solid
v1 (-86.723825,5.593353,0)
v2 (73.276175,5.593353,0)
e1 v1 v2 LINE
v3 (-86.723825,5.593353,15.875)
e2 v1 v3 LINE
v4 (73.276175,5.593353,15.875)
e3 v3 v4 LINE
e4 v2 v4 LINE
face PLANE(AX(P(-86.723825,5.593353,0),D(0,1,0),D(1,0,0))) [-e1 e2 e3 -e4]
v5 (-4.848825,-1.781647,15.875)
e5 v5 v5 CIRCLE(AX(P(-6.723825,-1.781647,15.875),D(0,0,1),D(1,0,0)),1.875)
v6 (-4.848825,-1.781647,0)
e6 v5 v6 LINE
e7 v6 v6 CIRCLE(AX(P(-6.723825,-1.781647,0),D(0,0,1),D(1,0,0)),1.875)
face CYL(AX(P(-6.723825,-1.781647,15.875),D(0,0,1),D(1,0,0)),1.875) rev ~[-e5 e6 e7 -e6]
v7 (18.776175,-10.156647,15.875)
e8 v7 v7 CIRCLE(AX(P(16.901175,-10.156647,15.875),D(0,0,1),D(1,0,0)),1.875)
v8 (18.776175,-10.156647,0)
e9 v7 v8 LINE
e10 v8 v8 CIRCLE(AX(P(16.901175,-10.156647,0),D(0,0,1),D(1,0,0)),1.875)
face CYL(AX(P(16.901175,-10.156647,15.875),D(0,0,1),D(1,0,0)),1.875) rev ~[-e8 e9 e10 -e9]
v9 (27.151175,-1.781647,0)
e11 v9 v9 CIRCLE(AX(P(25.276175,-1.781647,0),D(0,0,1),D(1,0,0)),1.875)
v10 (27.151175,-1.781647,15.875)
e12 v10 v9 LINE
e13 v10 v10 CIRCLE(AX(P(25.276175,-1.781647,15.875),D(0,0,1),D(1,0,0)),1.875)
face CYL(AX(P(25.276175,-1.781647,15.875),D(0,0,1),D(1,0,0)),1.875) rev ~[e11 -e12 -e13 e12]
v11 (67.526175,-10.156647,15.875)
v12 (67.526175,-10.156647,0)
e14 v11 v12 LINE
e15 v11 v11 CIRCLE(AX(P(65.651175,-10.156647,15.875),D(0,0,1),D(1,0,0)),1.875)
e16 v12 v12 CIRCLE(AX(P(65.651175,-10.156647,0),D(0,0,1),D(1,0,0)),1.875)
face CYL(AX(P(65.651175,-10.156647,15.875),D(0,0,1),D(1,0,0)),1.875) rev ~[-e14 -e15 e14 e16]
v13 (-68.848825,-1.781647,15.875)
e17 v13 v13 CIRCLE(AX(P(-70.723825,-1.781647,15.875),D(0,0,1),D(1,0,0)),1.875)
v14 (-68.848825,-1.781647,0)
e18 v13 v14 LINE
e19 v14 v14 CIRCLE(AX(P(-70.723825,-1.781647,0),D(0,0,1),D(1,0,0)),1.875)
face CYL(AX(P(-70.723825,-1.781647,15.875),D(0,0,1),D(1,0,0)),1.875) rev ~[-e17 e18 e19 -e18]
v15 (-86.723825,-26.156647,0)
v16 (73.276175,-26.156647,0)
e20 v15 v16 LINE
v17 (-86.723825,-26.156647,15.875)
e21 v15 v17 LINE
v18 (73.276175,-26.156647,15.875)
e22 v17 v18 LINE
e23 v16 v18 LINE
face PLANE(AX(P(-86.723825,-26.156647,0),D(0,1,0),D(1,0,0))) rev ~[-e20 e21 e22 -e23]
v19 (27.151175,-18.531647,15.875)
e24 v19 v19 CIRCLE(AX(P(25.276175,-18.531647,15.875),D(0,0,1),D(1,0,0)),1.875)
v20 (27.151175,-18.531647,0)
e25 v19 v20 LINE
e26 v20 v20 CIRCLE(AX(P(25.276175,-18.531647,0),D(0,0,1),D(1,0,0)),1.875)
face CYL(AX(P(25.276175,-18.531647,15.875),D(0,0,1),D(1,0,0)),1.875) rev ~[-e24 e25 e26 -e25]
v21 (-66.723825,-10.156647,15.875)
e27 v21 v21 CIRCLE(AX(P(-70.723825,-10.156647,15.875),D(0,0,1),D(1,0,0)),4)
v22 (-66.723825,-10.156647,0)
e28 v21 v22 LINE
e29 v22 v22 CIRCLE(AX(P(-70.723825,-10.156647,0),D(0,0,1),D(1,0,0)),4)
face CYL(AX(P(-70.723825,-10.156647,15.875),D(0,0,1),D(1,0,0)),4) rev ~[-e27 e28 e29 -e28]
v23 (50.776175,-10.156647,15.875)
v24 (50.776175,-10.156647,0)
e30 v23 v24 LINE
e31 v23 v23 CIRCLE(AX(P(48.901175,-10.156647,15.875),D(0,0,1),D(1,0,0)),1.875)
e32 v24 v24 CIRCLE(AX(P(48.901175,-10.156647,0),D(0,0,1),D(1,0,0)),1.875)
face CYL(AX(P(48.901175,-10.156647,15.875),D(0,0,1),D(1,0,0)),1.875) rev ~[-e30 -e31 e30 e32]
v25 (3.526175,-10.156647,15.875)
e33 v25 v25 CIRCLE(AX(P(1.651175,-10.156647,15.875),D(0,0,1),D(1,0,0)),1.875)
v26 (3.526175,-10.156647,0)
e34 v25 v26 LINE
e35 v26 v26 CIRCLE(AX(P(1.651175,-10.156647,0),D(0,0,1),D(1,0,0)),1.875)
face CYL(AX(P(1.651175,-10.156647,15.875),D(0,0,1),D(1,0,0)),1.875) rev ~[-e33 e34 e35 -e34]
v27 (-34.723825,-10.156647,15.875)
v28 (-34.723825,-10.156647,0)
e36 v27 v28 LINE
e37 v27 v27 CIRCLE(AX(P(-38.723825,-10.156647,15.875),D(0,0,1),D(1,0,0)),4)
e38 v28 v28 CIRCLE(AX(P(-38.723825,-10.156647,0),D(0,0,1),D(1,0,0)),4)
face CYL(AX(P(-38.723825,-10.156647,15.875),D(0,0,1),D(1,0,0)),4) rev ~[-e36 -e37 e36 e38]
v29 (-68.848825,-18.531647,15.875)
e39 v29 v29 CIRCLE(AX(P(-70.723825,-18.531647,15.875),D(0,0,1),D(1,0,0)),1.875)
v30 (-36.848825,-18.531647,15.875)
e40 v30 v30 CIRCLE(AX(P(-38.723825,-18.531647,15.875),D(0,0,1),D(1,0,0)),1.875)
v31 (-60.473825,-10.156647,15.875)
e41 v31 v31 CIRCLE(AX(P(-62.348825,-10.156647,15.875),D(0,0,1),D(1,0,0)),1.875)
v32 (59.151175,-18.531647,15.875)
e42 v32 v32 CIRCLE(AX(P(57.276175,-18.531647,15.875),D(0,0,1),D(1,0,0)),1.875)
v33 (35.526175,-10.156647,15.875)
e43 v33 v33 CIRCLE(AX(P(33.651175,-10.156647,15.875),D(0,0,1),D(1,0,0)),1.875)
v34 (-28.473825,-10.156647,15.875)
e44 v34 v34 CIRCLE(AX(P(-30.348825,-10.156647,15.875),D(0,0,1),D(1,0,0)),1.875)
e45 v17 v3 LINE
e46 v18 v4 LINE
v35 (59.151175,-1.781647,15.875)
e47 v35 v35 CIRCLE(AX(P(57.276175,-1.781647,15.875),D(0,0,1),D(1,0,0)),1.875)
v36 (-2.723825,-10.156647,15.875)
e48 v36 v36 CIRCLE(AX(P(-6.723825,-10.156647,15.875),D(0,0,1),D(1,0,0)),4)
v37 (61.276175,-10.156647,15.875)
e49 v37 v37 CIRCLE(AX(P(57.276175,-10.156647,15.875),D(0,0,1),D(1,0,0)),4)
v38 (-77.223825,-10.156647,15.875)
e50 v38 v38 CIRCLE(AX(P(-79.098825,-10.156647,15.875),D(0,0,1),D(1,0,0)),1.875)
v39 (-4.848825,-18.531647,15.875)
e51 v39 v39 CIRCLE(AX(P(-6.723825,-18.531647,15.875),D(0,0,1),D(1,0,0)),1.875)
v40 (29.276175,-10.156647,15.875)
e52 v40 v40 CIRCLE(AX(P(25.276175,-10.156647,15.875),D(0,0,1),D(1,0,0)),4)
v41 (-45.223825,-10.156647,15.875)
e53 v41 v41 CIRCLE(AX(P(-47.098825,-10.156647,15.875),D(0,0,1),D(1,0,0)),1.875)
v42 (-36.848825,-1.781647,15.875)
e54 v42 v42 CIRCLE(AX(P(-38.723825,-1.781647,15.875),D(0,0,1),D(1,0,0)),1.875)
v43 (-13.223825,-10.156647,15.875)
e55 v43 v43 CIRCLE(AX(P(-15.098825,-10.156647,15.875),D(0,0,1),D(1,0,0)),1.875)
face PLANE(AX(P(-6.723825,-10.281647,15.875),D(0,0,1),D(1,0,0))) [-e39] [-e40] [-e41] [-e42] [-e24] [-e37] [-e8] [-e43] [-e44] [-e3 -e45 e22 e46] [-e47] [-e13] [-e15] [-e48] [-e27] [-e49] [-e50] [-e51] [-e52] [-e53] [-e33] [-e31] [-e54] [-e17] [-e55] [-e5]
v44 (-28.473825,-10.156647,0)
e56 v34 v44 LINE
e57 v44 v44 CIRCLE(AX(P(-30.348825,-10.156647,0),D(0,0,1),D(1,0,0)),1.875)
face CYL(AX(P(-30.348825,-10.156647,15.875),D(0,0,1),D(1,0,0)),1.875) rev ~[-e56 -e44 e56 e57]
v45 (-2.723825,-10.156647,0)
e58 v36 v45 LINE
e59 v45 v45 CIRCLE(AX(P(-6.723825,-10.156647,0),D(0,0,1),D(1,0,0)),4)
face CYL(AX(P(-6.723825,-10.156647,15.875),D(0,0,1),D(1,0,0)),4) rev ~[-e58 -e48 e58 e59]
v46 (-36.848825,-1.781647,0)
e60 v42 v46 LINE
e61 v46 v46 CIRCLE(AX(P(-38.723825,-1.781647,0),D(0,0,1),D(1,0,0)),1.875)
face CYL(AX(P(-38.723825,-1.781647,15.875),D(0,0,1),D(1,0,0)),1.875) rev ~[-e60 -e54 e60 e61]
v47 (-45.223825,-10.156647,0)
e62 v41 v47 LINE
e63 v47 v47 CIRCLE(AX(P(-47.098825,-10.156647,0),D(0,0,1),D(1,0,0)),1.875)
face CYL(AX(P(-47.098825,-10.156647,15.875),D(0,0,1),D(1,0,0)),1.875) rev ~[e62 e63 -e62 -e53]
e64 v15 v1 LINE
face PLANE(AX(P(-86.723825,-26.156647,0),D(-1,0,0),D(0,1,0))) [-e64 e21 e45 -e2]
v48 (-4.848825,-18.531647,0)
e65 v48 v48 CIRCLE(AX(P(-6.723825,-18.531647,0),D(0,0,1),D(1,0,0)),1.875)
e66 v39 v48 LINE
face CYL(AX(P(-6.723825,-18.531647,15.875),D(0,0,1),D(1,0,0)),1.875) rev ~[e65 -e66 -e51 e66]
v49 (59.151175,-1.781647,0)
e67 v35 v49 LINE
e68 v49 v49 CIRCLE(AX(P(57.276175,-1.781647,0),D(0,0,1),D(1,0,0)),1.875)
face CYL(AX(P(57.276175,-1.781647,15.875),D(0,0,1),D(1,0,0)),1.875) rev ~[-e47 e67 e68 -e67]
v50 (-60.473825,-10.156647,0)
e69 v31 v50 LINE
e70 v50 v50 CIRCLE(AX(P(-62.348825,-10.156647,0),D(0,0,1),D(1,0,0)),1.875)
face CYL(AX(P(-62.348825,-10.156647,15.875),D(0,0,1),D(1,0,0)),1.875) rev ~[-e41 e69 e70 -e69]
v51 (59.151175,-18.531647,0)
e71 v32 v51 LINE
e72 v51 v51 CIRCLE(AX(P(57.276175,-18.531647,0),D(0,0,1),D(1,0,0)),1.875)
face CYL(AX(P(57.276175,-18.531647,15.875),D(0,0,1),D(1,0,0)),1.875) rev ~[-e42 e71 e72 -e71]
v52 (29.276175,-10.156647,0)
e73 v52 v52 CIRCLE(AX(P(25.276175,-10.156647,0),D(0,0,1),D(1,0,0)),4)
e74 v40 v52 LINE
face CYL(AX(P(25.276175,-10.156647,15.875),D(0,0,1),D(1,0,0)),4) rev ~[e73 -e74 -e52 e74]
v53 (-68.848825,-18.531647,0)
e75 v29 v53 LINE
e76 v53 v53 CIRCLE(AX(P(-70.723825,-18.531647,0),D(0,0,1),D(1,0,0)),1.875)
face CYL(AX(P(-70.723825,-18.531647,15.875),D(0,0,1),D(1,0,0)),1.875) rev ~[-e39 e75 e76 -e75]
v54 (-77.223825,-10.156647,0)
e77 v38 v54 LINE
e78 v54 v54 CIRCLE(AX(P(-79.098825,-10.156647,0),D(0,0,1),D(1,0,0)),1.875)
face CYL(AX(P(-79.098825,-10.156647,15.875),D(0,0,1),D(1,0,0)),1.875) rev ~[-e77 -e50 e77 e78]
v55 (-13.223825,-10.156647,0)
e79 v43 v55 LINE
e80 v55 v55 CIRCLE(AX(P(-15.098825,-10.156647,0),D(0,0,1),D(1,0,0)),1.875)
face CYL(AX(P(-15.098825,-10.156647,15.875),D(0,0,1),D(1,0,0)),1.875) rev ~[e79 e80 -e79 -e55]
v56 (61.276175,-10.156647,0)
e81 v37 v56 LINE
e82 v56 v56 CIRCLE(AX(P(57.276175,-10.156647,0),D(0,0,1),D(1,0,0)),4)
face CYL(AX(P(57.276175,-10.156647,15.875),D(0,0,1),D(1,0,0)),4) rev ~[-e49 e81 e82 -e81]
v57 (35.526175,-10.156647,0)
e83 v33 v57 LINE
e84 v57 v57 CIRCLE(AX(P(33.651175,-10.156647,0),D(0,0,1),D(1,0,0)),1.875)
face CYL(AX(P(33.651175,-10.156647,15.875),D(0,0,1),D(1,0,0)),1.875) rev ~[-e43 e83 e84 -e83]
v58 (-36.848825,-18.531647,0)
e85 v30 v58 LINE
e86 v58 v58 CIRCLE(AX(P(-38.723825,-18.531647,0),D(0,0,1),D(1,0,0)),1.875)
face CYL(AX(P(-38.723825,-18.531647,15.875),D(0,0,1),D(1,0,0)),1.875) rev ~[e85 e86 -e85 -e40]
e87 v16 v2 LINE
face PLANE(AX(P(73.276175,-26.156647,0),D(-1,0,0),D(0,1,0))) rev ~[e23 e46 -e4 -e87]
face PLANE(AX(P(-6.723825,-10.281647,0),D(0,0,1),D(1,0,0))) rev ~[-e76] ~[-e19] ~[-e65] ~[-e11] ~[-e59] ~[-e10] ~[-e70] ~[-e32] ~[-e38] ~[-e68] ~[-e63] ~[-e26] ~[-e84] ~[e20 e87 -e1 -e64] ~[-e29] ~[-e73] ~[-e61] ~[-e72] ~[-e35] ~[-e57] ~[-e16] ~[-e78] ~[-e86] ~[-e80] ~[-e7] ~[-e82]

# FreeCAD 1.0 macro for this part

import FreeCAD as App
import Part
import Sketcher

V = App.Vector
Q = App.Units.Quantity

doc = App.newDocument("Part")
body = doc.addObject("PartDesign::Body", "Body")

# Sketch on XY plane
sketch1 = doc.addObject("Sketcher::SketchObject", "Sketch")
body.addObject(sketch1)
sketch1.AttachmentSupport = (doc.XY_Plane, [""])
sketch1.MapMode = "FlatFace"
sketch1.addGeometry(Part.LineSegment(V(-87, 6, 0), V(-87, -26, 0)), False)
sketch1.addGeometry(Part.LineSegment(V(-87, -26, 0), V(73, -26, 0)), False)
sketch1.addGeometry(Part.LineSegment(V(73, -26, 0), V(73, 6, 0)), False)
sketch1.addGeometry(Part.LineSegment(V(73, 6, 0), V(-87, 6, 0)), False)
sketch1.addConstraint(Sketcher.Constraint("Coincident", 0, 2, 1, 1))
sketch1.addConstraint(Sketcher.Constraint("Coincident", 1, 2, 2, 1))
sketch1.addConstraint(Sketcher.Constraint("Coincident", 2, 2, 3, 1))
sketch1.addConstraint(Sketcher.Constraint("Coincident", 3, 2, 0, 1))
sketch1.addConstraint(Sketcher.Constraint("Vertical", 0))
sketch1.addConstraint(Sketcher.Constraint("Horizontal", 1))
sketch1.addConstraint(Sketcher.Constraint("Vertical", 2))
sketch1.addConstraint(Sketcher.Constraint("Horizontal", 3))
sketch1.addConstraint(Sketcher.Constraint("DistanceY", 0, 2, 0, 1, Q("1.25 in")))
sketch1.addConstraint(Sketcher.Constraint("DistanceX", 1, 1, 1, 2, 160.0))
sketch1.addConstraint(Sketcher.Constraint("DistanceX", 0, 2, -1, 1, 86.723825))
sketch1.addConstraint(Sketcher.Constraint("DistanceY", 0, 2, -1, 1, 26.156647))
pad1 = doc.addObject("PartDesign::Pad", "Pad")
body.addObject(pad1)
pad1.Profile = sketch1
pad1.Length = Q("0.625 in")

# Sketch on XY plane
sketch2 = doc.addObject("Sketcher::SketchObject", "Sketch001")
body.addObject(sketch2)
sketch2.AttachmentSupport = (doc.XY_Plane, [""])
sketch2.MapMode = "FlatFace"
sketch2.AttachmentOffset = App.Placement(V(0, 0, 0.625 * 25.4), App.Rotation())
sketch2.addGeometry(Part.Circle(V(-70.7, -10.2, 0), V(0, 0, 1), 4), False)
sketch2.addGeometry(Part.Circle(V(-70.7, -1.8, 0), V(0, 0, 1), 1.9), False)
sketch2.addGeometry(Part.Circle(V(-79.1, -10.2, 0), V(0, 0, 1), 1.9), False)
sketch2.addGeometry(Part.Circle(V(-70.7, -18.5, 0), V(0, 0, 1), 1.9), False)
sketch2.addGeometry(Part.Circle(V(-62.3, -10.2, 0), V(0, 0, 1), 1.9), False)
sketch2.addGeometry(Part.Circle(V(-38.7, -10.2, 0), V(0, 0, 1), 4), False)
sketch2.addGeometry(Part.Circle(V(-38.7, -1.8, 0), V(0, 0, 1), 1.9), False)
sketch2.addGeometry(Part.Circle(V(-47.1, -10.2, 0), V(0, 0, 1), 1.9), False)
sketch2.addGeometry(Part.Circle(V(-38.7, -18.5, 0), V(0, 0, 1), 1.9), False)
sketch2.addGeometry(Part.Circle(V(-30.3, -10.2, 0), V(0, 0, 1), 1.9), False)
sketch2.addGeometry(Part.Circle(V(-6.7, -10.2, 0), V(0, 0, 1), 4), False)
sketch2.addGeometry(Part.Circle(V(-15.1, -10.2, 0), V(0, 0, 1), 1.9), False)
sketch2.addGeometry(Part.Circle(V(-6.7, -1.8, 0), V(0, 0, 1), 1.9), False)
sketch2.addGeometry(Part.Circle(V(-6.7, -18.5, 0), V(0, 0, 1), 1.9), False)
sketch2.addGeometry(Part.Circle(V(1.7, -10.2, 0), V(0, 0, 1), 1.9), False)
sketch2.addGeometry(Part.Circle(V(25.3, -10.2, 0), V(0, 0, 1), 4), False)
sketch2.addGeometry(Part.Circle(V(16.9, -10.2, 0), V(0, 0, 1), 1.9), False)
sketch2.addGeometry(Part.Circle(V(25.3, -1.8, 0), V(0, 0, 1), 1.9), False)
sketch2.addGeometry(Part.Circle(V(25.3, -18.5, 0), V(0, 0, 1), 1.9), False)
sketch2.addGeometry(Part.Circle(V(57.3, -10.2, 0), V(0, 0, 1), 4), False)
sketch2.addGeometry(Part.Circle(V(48.9, -10.2, 0), V(0, 0, 1), 1.9), False)
sketch2.addGeometry(Part.Circle(V(57.3, -18.5, 0), V(0, 0, 1), 1.9), False)
sketch2.addGeometry(Part.Circle(V(65.7, -10.2, 0), V(0, 0, 1), 1.9), False)
sketch2.addGeometry(Part.Circle(V(57.3, -1.8, 0), V(0, 0, 1), 1.9), False)
sketch2.addGeometry(Part.Circle(V(33.7, -10.2, 0), V(0, 0, 1), 1.9), False)
sketch2.addConstraint(Sketcher.Constraint("Equal", 1, 2))
sketch2.addConstraint(Sketcher.Constraint("Equal", 2, 3))
sketch2.addConstraint(Sketcher.Constraint("Equal", 3, 4))
sketch2.addConstraint(Sketcher.Constraint("Equal", 0, 5))
sketch2.addConstraint(Sketcher.Constraint("Equal", 4, 6))
sketch2.addConstraint(Sketcher.Constraint("Equal", 6, 7))
sketch2.addConstraint(Sketcher.Constraint("Equal", 7, 8))
sketch2.addConstraint(Sketcher.Constraint("Equal", 8, 9))
sketch2.addConstraint(Sketcher.Constraint("Equal", 5, 10))
sketch2.addConstraint(Sketcher.Constraint("Equal", 9, 11))
sketch2.addConstraint(Sketcher.Constraint("Equal", 11, 12))
sketch2.addConstraint(Sketcher.Constraint("Equal", 12, 13))
sketch2.addConstraint(Sketcher.Constraint("Equal", 13, 14))
sketch2.addConstraint(Sketcher.Constraint("Equal", 10, 15))
sketch2.addConstraint(Sketcher.Constraint("Equal", 14, 16))
sketch2.addConstraint(Sketcher.Constraint("Equal", 16, 17))
sketch2.addConstraint(Sketcher.Constraint("Equal", 17, 18))
sketch2.addConstraint(Sketcher.Constraint("Equal", 15, 19))
sketch2.addConstraint(Sketcher.Constraint("Equal", 18, 20))
sketch2.addConstraint(Sketcher.Constraint("Equal", 20, 21))
sketch2.addConstraint(Sketcher.Constraint("Equal", 21, 22))
sketch2.addConstraint(Sketcher.Constraint("Equal", 22, 23))
sketch2.addConstraint(Sketcher.Constraint("Equal", 23, 24))
sketch2.addConstraint(Sketcher.Constraint("Horizontal", 0, 3, 2, 3))
sketch2.addConstraint(Sketcher.Constraint("Horizontal", 2, 3, 4, 3))
sketch2.addConstraint(Sketcher.Constraint("Horizontal", 4, 3, 5, 3))
sketch2.addConstraint(Sketcher.Constraint("Horizontal", 1, 3, 6, 3))
sketch2.addConstraint(Sketcher.Constraint("Horizontal", 5, 3, 7, 3))
sketch2.addConstraint(Sketcher.Constraint("Horizontal", 3, 3, 8, 3))
sketch2.addConstraint(Sketcher.Constraint("Horizontal", 7, 3, 9, 3))
sketch2.addConstraint(Sketcher.Constraint("Horizontal", 9, 3, 10, 3))
sketch2.addConstraint(Sketcher.Constraint("Horizontal", 10, 3, 11, 3))
sketch2.addConstraint(Sketcher.Constraint("Horizontal", 6, 3, 12, 3))
sketch2.addConstraint(Sketcher.Constraint("Horizontal", 8, 3, 13, 3))
sketch2.addConstraint(Sketcher.Constraint("Horizontal", 11, 3, 14, 3))
sketch2.addConstraint(Sketcher.Constraint("Horizontal", 14, 3, 15, 3))
sketch2.addConstraint(Sketcher.Constraint("Horizontal", 15, 3, 16, 3))
sketch2.addConstraint(Sketcher.Constraint("Horizontal", 12, 3, 17, 3))
sketch2.addConstraint(Sketcher.Constraint("Horizontal", 13, 3, 18, 3))
sketch2.addConstraint(Sketcher.Constraint("Horizontal", 16, 3, 19, 3))
sketch2.addConstraint(Sketcher.Constraint("Horizontal", 19, 3, 20, 3))
sketch2.addConstraint(Sketcher.Constraint("Horizontal", 18, 3, 21, 3))
sketch2.addConstraint(Sketcher.Constraint("Horizontal", 20, 3, 22, 3))
sketch2.addConstraint(Sketcher.Constraint("Horizontal", 17, 3, 23, 3))
sketch2.addConstraint(Sketcher.Constraint("Horizontal", 22, 3, 24, 3))
sketch2.addConstraint(Sketcher.Constraint("Vertical", 0, 3, 1, 3))
sketch2.addConstraint(Sketcher.Constraint("Vertical", 1, 3, 3, 3))
sketch2.addConstraint(Sketcher.Constraint("Vertical", 5, 3, 6, 3))
sketch2.addConstraint(Sketcher.Constraint("Vertical", 6, 3, 8, 3))
sketch2.addConstraint(Sketcher.Constraint("Vertical", 10, 3, 12, 3))
sketch2.addConstraint(Sketcher.Constraint("Vertical", 12, 3, 13, 3))
sketch2.addConstraint(Sketcher.Constraint("Vertical", 15, 3, 17, 3))
sketch2.addConstraint(Sketcher.Constraint("Vertical", 17, 3, 18, 3))
sketch2.addConstraint(Sketcher.Constraint("Vertical", 19, 3, 21, 3))
sketch2.addConstraint(Sketcher.Constraint("Vertical", 21, 3, 23, 3))
sketch2.addConstraint(Sketcher.Constraint("Diameter", 0, 8.0))
sketch2.addConstraint(Sketcher.Constraint("Diameter", 1, 3.75))
sketch2.addConstraint(Sketcher.Constraint("DistanceY", 0, 3, 1, 3, 8.375))
sketch2.addConstraint(Sketcher.Constraint("DistanceX", 2, 3, 0, 3, 8.375))
sketch2.addConstraint(Sketcher.Constraint("DistanceY", 3, 3, 0, 3, 8.375))
sketch2.addConstraint(Sketcher.Constraint("DistanceX", 0, 3, 4, 3, 8.375))
sketch2.addConstraint(Sketcher.Constraint("DistanceX", 4, 3, 5, 3, 23.625))
sketch2.addConstraint(Sketcher.Constraint("DistanceX", 7, 3, 5, 3, 8.375))
sketch2.addConstraint(Sketcher.Constraint("DistanceX", 5, 3, 9, 3, 8.375))
sketch2.addConstraint(Sketcher.Constraint("DistanceX", 9, 3, 10, 3, 23.625))
sketch2.addConstraint(Sketcher.Constraint("DistanceX", 11, 3, 10, 3, 8.375))
sketch2.addConstraint(Sketcher.Constraint("DistanceX", 10, 3, 14, 3, 8.375))
sketch2.addConstraint(Sketcher.Constraint("DistanceX", 14, 3, 15, 3, 23.625))
sketch2.addConstraint(Sketcher.Constraint("DistanceX", 16, 3, 15, 3, 8.375))
sketch2.addConstraint(Sketcher.Constraint("DistanceX", 15, 3, 19, 3, 32.0))
sketch2.addConstraint(Sketcher.Constraint("DistanceX", 20, 3, 19, 3, 8.375))
sketch2.addConstraint(Sketcher.Constraint("DistanceX", 19, 3, 22, 3, 8.375))
sketch2.addConstraint(Sketcher.Constraint("DistanceX", 15, 3, 24, 3, 8.375))
sketch2.addConstraint(Sketcher.Constraint("DistanceX", 0, 3, -1, 1, 70.723825))
sketch2.addConstraint(Sketcher.Constraint("DistanceY", 0, 3, -1, 1, 10.156647))
pocket1 = doc.addObject("PartDesign::Pocket", "Pocket")
body.addObject(pocket1)
pocket1.Profile = sketch2
pocket1.Length = Q("1 in")

doc.recompute()
